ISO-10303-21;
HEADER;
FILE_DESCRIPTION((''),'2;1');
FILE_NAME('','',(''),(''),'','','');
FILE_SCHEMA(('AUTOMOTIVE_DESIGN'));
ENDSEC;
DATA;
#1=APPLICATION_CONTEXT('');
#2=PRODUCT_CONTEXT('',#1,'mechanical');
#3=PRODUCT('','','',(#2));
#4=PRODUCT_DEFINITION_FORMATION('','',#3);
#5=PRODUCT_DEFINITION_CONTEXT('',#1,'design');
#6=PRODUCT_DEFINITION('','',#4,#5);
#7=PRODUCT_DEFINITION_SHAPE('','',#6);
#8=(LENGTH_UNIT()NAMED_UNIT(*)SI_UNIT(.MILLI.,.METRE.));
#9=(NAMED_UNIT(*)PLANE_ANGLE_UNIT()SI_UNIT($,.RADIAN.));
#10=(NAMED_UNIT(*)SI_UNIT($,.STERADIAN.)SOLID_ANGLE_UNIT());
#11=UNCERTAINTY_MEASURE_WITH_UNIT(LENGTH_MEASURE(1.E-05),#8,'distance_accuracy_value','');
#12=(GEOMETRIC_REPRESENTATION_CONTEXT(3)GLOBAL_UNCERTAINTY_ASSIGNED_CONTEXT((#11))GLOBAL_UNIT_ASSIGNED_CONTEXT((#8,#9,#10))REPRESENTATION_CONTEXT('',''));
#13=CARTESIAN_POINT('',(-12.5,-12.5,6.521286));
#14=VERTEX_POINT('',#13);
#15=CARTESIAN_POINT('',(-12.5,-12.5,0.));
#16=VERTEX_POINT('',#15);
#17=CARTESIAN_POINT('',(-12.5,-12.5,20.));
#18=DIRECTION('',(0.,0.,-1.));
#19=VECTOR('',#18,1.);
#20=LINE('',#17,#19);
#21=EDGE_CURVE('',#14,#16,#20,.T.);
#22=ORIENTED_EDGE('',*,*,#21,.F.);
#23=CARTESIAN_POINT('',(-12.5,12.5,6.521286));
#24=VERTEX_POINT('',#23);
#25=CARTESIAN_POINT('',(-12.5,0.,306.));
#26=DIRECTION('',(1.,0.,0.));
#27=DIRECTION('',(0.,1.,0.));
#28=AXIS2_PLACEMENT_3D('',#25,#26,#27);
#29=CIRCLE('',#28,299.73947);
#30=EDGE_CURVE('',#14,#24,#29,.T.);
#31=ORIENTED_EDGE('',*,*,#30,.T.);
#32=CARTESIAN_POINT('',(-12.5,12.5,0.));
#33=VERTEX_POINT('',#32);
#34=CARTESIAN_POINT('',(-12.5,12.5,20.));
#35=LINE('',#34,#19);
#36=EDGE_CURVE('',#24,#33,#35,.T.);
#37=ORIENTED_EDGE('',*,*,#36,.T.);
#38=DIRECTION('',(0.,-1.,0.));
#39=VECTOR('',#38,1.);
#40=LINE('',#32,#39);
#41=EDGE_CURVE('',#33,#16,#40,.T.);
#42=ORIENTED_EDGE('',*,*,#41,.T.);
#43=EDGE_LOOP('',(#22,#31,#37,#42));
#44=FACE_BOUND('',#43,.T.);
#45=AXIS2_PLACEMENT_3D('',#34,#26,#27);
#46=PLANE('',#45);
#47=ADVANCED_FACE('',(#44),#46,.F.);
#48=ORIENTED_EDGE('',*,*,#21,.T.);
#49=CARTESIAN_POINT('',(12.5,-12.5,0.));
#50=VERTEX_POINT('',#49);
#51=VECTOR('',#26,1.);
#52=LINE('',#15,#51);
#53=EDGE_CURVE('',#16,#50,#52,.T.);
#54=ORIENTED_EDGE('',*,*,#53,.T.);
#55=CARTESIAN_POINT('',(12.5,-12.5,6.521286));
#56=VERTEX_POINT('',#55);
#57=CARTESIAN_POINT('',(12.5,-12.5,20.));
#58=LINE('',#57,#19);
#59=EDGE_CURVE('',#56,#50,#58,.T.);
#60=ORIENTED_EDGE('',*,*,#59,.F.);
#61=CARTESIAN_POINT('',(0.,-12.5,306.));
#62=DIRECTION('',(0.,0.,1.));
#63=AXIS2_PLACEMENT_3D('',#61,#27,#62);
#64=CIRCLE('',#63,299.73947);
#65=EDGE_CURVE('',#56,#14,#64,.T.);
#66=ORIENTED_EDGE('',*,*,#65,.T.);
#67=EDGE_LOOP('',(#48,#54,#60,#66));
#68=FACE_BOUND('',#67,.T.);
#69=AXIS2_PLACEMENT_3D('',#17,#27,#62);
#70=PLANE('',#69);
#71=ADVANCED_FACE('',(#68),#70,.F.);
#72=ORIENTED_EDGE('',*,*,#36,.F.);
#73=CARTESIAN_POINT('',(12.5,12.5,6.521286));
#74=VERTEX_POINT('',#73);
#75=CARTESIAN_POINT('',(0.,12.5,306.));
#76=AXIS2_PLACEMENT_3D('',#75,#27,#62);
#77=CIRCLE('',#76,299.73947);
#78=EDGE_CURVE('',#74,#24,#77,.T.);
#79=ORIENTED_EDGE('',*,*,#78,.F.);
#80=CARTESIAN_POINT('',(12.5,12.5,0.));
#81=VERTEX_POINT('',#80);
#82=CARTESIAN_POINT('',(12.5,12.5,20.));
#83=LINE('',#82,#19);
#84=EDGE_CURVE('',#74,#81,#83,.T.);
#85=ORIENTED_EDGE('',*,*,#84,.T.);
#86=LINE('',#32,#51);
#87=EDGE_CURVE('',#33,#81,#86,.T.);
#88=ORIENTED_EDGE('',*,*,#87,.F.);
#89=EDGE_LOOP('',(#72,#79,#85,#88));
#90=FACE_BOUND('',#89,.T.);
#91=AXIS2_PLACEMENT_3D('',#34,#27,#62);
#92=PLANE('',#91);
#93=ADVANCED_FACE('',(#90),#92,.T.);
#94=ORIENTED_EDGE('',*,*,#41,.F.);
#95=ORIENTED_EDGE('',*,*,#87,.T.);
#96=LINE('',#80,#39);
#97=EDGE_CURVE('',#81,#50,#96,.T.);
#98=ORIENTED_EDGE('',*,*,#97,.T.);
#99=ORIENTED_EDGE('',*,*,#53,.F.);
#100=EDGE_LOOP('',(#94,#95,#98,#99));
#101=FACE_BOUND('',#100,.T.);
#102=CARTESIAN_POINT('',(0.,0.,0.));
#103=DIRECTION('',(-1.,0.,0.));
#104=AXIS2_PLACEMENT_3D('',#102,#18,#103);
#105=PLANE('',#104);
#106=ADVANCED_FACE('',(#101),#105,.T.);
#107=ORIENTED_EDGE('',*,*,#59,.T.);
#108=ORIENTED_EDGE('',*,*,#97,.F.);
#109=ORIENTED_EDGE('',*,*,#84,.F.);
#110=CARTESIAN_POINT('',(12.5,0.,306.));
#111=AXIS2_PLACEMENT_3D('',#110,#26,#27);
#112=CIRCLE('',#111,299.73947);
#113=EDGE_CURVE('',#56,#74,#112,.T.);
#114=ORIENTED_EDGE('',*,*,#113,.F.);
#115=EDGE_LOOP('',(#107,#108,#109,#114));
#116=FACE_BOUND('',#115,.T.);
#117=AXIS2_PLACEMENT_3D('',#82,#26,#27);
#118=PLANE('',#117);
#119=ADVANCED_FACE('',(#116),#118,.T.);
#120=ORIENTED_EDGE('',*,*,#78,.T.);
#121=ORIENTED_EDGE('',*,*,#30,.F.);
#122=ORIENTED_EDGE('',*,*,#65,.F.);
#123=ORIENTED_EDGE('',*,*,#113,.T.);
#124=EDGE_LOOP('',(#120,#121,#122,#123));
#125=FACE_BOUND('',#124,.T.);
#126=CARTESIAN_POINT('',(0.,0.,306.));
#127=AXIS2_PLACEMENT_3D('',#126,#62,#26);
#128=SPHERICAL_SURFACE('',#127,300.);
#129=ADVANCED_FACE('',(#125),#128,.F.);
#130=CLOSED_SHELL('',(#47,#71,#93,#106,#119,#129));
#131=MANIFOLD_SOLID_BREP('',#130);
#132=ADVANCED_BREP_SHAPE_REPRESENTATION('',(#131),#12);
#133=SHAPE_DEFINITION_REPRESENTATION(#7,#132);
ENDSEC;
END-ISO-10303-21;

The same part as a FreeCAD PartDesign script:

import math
import FreeCAD as App
import Part
import Sketcher

V = App.Vector
Q = App.Units.Quantity

doc = App.newDocument("Part")
params = doc.addObject("Spreadsheet::Sheet", "Params")
for row, (alias, value) in enumerate([
    ("sketch1_width", "25 mm"),
    ("pad1_length", "20 mm"),
    ("sketch2_radius", "300 mm"),
    ("groove_angle", "360 deg"),
], start=1):
    params.set(f"A{row}", alias)
    params.set(f"B{row}", "=" + value)
    params.setAlias(f"B{row}", alias)

body = doc.addObject("PartDesign::Body", "Body")

sketch1 = doc.addObject("Sketcher::SketchObject", "Sketch")
body.addObject(sketch1)
sketch1.AttachmentSupport = (doc.XY_Plane, [""])
sketch1.MapMode = "FlatFace"
sketch1.addGeometry([
    Part.LineSegment(V(-12, 12, 0), V(-12, -12, 0)),
    Part.LineSegment(V(-12, -12, 0), V(12, -12, 0)),
    Part.LineSegment(V(12, -12, 0), V(12, 12, 0)),
    Part.LineSegment(V(12, 12, 0), V(-12, 12, 0)),
], False)
sketch1.addConstraint([
    Sketcher.Constraint("Coincident", 0, 2, 1, 1),
    Sketcher.Constraint("Coincident", 1, 2, 2, 1),
    Sketcher.Constraint("Coincident", 2, 2, 3, 1),
    Sketcher.Constraint("Coincident", 3, 2, 0, 1),
    Sketcher.Constraint("Vertical", 0),
    Sketcher.Constraint("Horizontal", 1),
    Sketcher.Constraint("Vertical", 2),
    Sketcher.Constraint("Horizontal", 3),
    Sketcher.Constraint("Symmetric", 0, 2, 2, 2, -1, 1),
    Sketcher.Constraint("Equal", 3, 0),
    Sketcher.Constraint("DistanceX", 1, 1, 1, 2, Q("25 mm")),
])
sketch1.setExpression("Constraints[10]", "Params.sketch1_width")
pad1 = doc.addObject("PartDesign::Pad", "Pad")
body.addObject(pad1)
pad1.Profile = sketch1
pad1.setExpression("Length", "Params.pad1_length")

sketch2 = doc.addObject("Sketcher::SketchObject", "Sketch001")
body.addObject(sketch2)
sketch2.AttachmentSupport = (doc.XZ_Plane, [""])
sketch2.MapMode = "FlatFace"
sketch2.addGeometry([
    Part.LineSegment(V(0, 239, 0), V(292, 239, 0)),
    Part.ArcOfCircle(Part.Circle(V(0, 306, 0), V(0, 0, 1), 300), math.radians(-90), math.radians(-13)),
    Part.LineSegment(V(0, 6, 0), V(0, 239, 0)),
], False)
sketch2.addConstraint([
    Sketcher.Constraint("Coincident", 0, 2, 1, 2),
    Sketcher.Constraint("Coincident", 1, 1, 2, 1),
    Sketcher.Constraint("Coincident", 2, 2, 0, 1),
    Sketcher.Constraint("Horizontal", 0),
    Sketcher.Constraint("Vertical", 2),
    Sketcher.Constraint("PointOnObject", 1, 3, -2),
    Sketcher.Constraint("PointOnObject", 2, 2, -2),
    Sketcher.Constraint("Radius", 1, Q("300 mm")),
    Sketcher.Constraint("DistanceY", -1, 1, 1, 3, Q("306 mm")),
    Sketcher.Constraint("DistanceX", 0, 1, 0, 2, Q("292.453639 mm")),
])
sketch2.setExpression("Constraints[7]", "Params.sketch2_radius")
groove = doc.addObject("PartDesign::Groove", "Groove")
body.addObject(groove)
groove.Profile = sketch2
groove.ReferenceAxis = (sketch2, ["V_Axis"])
groove.setExpression("Angle", "Params.groove_angle")

doc.recompute()
